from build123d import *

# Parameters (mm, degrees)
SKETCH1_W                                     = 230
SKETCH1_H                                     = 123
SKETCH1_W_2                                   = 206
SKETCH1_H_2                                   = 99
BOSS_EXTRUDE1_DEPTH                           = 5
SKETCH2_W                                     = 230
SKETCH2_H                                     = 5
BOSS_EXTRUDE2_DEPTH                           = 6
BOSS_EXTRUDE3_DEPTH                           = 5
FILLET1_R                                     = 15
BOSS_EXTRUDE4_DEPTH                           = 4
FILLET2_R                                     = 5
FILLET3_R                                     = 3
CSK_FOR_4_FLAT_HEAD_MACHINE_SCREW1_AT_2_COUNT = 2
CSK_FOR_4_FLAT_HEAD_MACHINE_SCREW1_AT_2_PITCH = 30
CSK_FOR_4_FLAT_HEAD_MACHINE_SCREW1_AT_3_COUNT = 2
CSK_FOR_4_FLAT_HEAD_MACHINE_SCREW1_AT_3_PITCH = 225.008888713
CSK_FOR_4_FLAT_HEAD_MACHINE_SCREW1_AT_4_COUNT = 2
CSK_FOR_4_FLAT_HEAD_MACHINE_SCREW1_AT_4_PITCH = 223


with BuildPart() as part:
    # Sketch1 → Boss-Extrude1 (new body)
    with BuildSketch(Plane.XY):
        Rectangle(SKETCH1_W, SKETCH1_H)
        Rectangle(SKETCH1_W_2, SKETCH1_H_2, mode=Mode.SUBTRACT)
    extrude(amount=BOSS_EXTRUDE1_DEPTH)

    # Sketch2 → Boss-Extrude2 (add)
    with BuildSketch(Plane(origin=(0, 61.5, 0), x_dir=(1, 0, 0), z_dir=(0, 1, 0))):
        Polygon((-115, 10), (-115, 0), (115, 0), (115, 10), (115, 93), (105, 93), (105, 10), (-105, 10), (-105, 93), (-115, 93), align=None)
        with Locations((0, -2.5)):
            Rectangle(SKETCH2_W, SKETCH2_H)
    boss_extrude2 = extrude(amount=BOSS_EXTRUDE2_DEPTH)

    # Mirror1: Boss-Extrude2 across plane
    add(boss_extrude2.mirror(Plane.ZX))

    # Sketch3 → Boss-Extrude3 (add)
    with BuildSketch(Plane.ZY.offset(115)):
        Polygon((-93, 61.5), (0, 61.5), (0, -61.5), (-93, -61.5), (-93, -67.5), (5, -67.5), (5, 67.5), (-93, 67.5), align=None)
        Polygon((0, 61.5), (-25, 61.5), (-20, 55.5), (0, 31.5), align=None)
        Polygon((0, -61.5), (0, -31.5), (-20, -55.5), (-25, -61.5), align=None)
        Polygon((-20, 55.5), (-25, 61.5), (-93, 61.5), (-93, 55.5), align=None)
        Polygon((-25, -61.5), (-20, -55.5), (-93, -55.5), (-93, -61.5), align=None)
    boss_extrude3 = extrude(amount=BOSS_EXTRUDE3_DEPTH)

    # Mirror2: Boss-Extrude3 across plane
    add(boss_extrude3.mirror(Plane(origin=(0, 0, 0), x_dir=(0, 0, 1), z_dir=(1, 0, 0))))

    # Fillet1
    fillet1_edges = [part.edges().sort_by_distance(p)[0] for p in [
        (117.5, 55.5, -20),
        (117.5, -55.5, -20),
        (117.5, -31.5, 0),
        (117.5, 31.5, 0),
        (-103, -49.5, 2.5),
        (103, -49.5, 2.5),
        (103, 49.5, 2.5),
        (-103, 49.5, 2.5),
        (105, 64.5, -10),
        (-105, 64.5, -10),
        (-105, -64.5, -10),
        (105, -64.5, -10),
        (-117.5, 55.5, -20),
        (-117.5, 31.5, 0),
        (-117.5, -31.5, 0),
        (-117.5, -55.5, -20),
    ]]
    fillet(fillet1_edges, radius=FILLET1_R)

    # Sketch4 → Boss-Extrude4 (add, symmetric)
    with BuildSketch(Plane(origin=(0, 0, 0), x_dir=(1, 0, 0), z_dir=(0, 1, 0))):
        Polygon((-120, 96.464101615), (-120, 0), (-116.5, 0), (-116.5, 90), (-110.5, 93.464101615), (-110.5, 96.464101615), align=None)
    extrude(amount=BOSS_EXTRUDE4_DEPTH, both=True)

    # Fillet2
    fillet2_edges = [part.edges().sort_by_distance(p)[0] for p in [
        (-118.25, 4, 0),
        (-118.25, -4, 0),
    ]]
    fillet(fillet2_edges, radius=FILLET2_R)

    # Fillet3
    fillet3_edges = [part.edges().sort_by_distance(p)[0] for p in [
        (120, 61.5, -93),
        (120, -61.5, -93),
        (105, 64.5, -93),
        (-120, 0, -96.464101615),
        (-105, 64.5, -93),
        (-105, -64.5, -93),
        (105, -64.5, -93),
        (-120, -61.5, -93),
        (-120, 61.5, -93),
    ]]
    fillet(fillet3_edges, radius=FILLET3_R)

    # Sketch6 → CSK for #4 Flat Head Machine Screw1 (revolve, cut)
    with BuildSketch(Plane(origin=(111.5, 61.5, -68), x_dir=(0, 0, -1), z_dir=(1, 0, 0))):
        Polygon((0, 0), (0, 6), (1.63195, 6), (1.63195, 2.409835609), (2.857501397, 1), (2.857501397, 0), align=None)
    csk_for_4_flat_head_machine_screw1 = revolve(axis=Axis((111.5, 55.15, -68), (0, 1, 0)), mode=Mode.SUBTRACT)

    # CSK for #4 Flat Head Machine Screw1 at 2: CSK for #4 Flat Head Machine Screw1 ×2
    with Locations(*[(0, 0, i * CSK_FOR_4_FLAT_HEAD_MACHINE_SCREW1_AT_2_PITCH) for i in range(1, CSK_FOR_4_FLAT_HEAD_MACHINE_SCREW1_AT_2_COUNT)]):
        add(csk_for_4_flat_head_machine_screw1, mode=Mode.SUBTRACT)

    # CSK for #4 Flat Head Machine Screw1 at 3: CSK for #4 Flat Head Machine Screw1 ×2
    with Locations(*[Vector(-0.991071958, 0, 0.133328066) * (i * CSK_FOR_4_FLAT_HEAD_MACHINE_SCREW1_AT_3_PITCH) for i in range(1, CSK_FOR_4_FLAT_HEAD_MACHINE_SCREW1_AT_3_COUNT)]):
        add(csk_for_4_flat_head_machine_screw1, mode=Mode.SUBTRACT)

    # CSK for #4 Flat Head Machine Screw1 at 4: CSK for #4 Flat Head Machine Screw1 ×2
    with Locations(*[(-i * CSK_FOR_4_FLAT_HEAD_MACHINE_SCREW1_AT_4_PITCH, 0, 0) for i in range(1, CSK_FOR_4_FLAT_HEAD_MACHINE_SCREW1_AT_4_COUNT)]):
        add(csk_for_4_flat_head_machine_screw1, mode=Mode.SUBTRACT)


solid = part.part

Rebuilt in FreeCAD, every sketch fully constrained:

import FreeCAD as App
import Part
import Sketcher

V = App.Vector
Q = App.Units.Quantity


def edges_at(feature, points):
    """Names of the edges that pass closest to the given points."""
    edges = feature.Shape.Edges
    near = lambda p: min(range(len(edges)), key=lambda i: edges[i].distToShape(Part.Vertex(*p))[0])
    return sorted({f"Edge{near(p) + 1}" for p in points})


def add_polygon(sketch, points):
    """Adds a closed chain of lines whose ends are joined by coincident constraints."""
    first, n = sketch.GeometryCount, len(points)
    for a, b in zip(points, points[1:] + points[:1]):
        sketch.addGeometry(Part.LineSegment(App.Vector(*a, 0), App.Vector(*b, 0)), False)
    for i in range(n):
        sketch.addConstraint(Sketcher.Constraint("Coincident", first + i, 2, first + (i + 1) % n, 1))

doc = App.newDocument("Part")
body = doc.addObject("PartDesign::Body", "Body")

sketch1 = body.newObject("Sketcher::SketchObject", "Sketch")
sketch1.AttachmentSupport = (doc.getObject("XY_Plane"), [""])
sketch1.MapMode = "FlatFace"
add_polygon(sketch1, [(-115, 62), (-115, -62), (115, -62), (115, 62)])
add_polygon(sketch1, [(103, -50), (-103, -50), (-103, 50), (103, 50)])
sketch1.addConstraint(Sketcher.Constraint("Vertical", 0))
sketch1.addConstraint(Sketcher.Constraint("Horizontal", 1))
sketch1.addConstraint(Sketcher.Constraint("Vertical", 2))
sketch1.addConstraint(Sketcher.Constraint("Horizontal", 3))
sketch1.addConstraint(Sketcher.Constraint("Horizontal", 4))
sketch1.addConstraint(Sketcher.Constraint("Vertical", 5))
sketch1.addConstraint(Sketcher.Constraint("Horizontal", 6))
sketch1.addConstraint(Sketcher.Constraint("Vertical", 7))
sketch1.addConstraint(Sketcher.Constraint("Symmetric", 0, 2, 2, 2, -1, 1))
sketch1.addConstraint(Sketcher.Constraint("Symmetric", 4, 2, 6, 2, -1, 1))
sketch1.addConstraint(Sketcher.Constraint("DistanceX", 1, 1, 1, 2, Q("230 mm")))
sketch1.addConstraint(Sketcher.Constraint("DistanceX", 4, 2, 4, 1, Q("206 mm")))
sketch1.addConstraint(Sketcher.Constraint("DistanceY", 0, 2, 0, 1, Q("123 mm")))
sketch1.addConstraint(Sketcher.Constraint("DistanceY", 5, 1, 5, 2, Q("99 mm")))
pad1 = body.newObject("PartDesign::Pad", "Pad")
pad1.Profile = sketch1
pad1.Length = 5

sketch2 = body.newObject("Sketcher::SketchObject", "Sketch001")
sketch2.AttachmentSupport = (doc.getObject("XZ_Plane"), [""])
sketch2.MapMode = "FlatFace"
sketch2.AttachmentOffset = App.Placement(V(0, 0, -61.5), App.Rotation())
add_polygon(sketch2, [(115, -93), (105, -93), (105, -10), (-105, -10), (-105, -93), (-115, -93), (-115, 5), (115, 5)])
sketch2.addConstraint(Sketcher.Constraint("Horizontal", 0))
sketch2.addConstraint(Sketcher.Constraint("Vertical", 1))
sketch2.addConstraint(Sketcher.Constraint("Horizontal", 2))
sketch2.addConstraint(Sketcher.Constraint("Vertical", 3))
sketch2.addConstraint(Sketcher.Constraint("Horizontal", 4))
sketch2.addConstraint(Sketcher.Constraint("Vertical", 5))
sketch2.addConstraint(Sketcher.Constraint("Horizontal", 6))
sketch2.addConstraint(Sketcher.Constraint("Vertical", 7))
sketch2.addConstraint(Sketcher.Constraint("Symmetric", 0, 2, 3, 2, -2))
sketch2.addConstraint(Sketcher.Constraint("Equal", 0, 4))
sketch2.addConstraint(Sketcher.Constraint("DistanceX", 0, 2, 0, 1, Q("10 mm")))
sketch2.addConstraint(Sketcher.Constraint("DistanceX", 2, 2, 2, 1, Q("210 mm")))
sketch2.addConstraint(Sketcher.Constraint("DistanceY", 1, 1, 1, 2, Q("83 mm")))
sketch2.addConstraint(Sketcher.Constraint("DistanceY", 5, 1, 5, 2, Q("98 mm")))
sketch2.addConstraint(Sketcher.Constraint("DistanceY", 0, 2, -1, 1, Q("93 mm")))
pad2 = body.newObject("PartDesign::Pad", "Pad001")
pad2.Profile = sketch2
pad2.Length = 6
pad2.Reversed = True
doc.recompute()

mirrored = body.newObject("PartDesign::Mirrored", "Mirrored")
mirrored.Originals = [pad2]
mirrored.MirrorPlane = (doc.getObject("XZ_Plane"), [""])
body.Tip = mirrored

sketch3 = body.newObject("Sketcher::SketchObject", "Sketch002")
sketch3.AttachmentSupport = (doc.getObject("YZ_Plane"), [""])
sketch3.MapMode = "FlatFace"
sketch3.AttachmentOffset = App.Placement(V(0, 0, -115), App.Rotation())
add_polygon(sketch3, [(56, -20), (32, 0), (-32, 0), (-56, -20), (-56, -93), (-68, -93), (-68, 5), (68, 5), (68, -93), (56, -93)])
sketch3.addConstraint(Sketcher.Constraint("Horizontal", 1))
sketch3.addConstraint(Sketcher.Constraint("Vertical", 3))
sketch3.addConstraint(Sketcher.Constraint("Horizontal", 4))
sketch3.addConstraint(Sketcher.Constraint("Vertical", 5))
sketch3.addConstraint(Sketcher.Constraint("Horizontal", 6))
sketch3.addConstraint(Sketcher.Constraint("Vertical", 7))
sketch3.addConstraint(Sketcher.Constraint("Horizontal", 8))
sketch3.addConstraint(Sketcher.Constraint("Vertical", 9))
sketch3.addConstraint(Sketcher.Constraint("Symmetric", 0, 2, 1, 2, -1, 1))
sketch3.addConstraint(Sketcher.Constraint("Symmetric", 4, 2, 7, 2, -2))
sketch3.addConstraint(Sketcher.Constraint("Symmetric", 2, 2, 9, 2, -2))
sketch3.addConstraint(Sketcher.Constraint("DistanceX", 1, 2, 1, 1, Q("63 mm")))
sketch3.addConstraint(Sketcher.Constraint("DistanceX", 4, 2, 4, 1, Q("12 mm")))
sketch3.addConstraint(Sketcher.Constraint("DistanceX", 6, 1, 6, 2, Q("135 mm")))
sketch3.addConstraint(Sketcher.Constraint("DistanceY", 3, 2, 3, 1, Q("73 mm")))
sketch3.addConstraint(Sketcher.Constraint("DistanceY", 5, 1, 5, 2, Q("98 mm")))
sketch3.addConstraint(Sketcher.Constraint("DistanceY", 2, 2, -1, 1, Q("20 mm")))
pad3 = body.newObject("PartDesign::Pad", "Pad002")
pad3.Profile = sketch3
pad3.Length = 5
pad3.Reversed = True
doc.recompute()

mirrored2 = body.newObject("PartDesign::Mirrored", "Mirrored001")
mirrored2.Originals = [pad3]
mirrored2.MirrorPlane = (doc.getObject("YZ_Plane"), [""])
body.Tip = mirrored2
doc.recompute()

fillet = body.newObject("PartDesign::Fillet", "Fillet")
fillet.Base = (mirrored2, edges_at(mirrored2, [
    (117.5, 55.5, -20),
    (117.5, -55.5, -20),
    (117.5, -31.5, 0),
    (117.5, 31.5, 0),
    (-103, -49.5, 2.5),
    (103, -49.5, 2.5),
    (103, 49.5, 2.5),
    (-103, 49.5, 2.5),
    (105, 64.5, -10),
    (-105, 64.5, -10),
    (-105, -64.5, -10),
    (105, -64.5, -10),
    (-117.5, 55.5, -20),
    (-117.5, 31.5, 0),
    (-117.5, -31.5, 0),
    (-117.5, -55.5, -20),
]))
fillet.Radius = 15

sketch4 = body.newObject("Sketcher::SketchObject", "Sketch003")
sketch4.AttachmentSupport = (doc.getObject("XZ_Plane"), [""])
sketch4.MapMode = "FlatFace"
add_polygon(sketch4, [(-120, -96.5), (-120, 0), (-116.5, 0), (-116.5, -90), (-110.5, -93.5), (-110.5, -96.5)])
sketch4.addConstraint(Sketcher.Constraint("Vertical", 0))
sketch4.addConstraint(Sketcher.Constraint("Horizontal", 1))
sketch4.addConstraint(Sketcher.Constraint("Vertical", 2))
sketch4.addConstraint(Sketcher.Constraint("Vertical", 4))
sketch4.addConstraint(Sketcher.Constraint("Horizontal", 5))
sketch4.addConstraint(Sketcher.Constraint("PointOnObject", 0, 2, -1))
sketch4.addConstraint(Sketcher.Constraint("DistanceY", 2, 2, 2, 1, Q("90 mm")))
sketch4.addConstraint(Sketcher.Constraint("DistanceY", 4, 2, 4, 1, Q("3 mm")))
sketch4.addConstraint(Sketcher.Constraint("Angle", 3, Q("-30 deg")))
sketch4.addConstraint(Sketcher.Constraint("DistanceX", 1, 1, 1, 2, Q("3.5 mm")))
sketch4.addConstraint(Sketcher.Constraint("DistanceX", 5, 2, 5, 1, Q("9.5 mm")))
sketch4.addConstraint(Sketcher.Constraint("DistanceX", 0, 2, -1, 1, Q("120 mm")))
pad4 = body.newObject("PartDesign::Pad", "Pad003")
pad4.Profile = sketch4
pad4.Length = 8
pad4.Midplane = True
doc.recompute()

fillet2 = body.newObject("PartDesign::Fillet", "Fillet001")
fillet2.Base = (pad4, edges_at(pad4, [(-118.25, 4, 0), (-118.25, -4, 0)]))
fillet2.Radius = 5
doc.recompute()

fillet3 = body.newObject("PartDesign::Fillet", "Fillet002")
fillet3.Base = (fillet2, edges_at(fillet2, [
    (120, 61.5, -93),
    (120, -61.5, -93),
    (105, 64.5, -93),
    (-120, 0, -96.464),
    (-105, 64.5, -93),
    (-105, -64.5, -93),
    (105, -64.5, -93),
    (-120, -61.5, -93),
    (-120, 61.5, -93),
]))
fillet3.Radius = 3

sketch5 = body.newObject("Sketcher::SketchObject", "Sketch004")
sketch5.AttachmentSupport = (doc.getObject("YZ_Plane"), [""])
sketch5.MapMode = "FlatFace"
sketch5.AttachmentOffset = App.Placement(V(0, 0, 111.5), App.Rotation())
add_polygon(sketch5, [(67.5, -68), (61.5, -68), (61.5, -70.9), (62.5, -70.9), (63.9, -69.6), (67.5, -69.6)])
sketch5.addGeometry(Part.LineSegment(V(61.5, -68, 0), V(67.5, -68, 0)), True)
sketch5.addConstraint(Sketcher.Constraint("Horizontal", 0))
sketch5.addConstraint(Sketcher.Constraint("Vertical", 1))
sketch5.addConstraint(Sketcher.Constraint("Horizontal", 2))
sketch5.addConstraint(Sketcher.Constraint("Horizontal", 4))
sketch5.addConstraint(Sketcher.Constraint("Vertical", 5))
sketch5.addConstraint(Sketcher.Constraint("Horizontal", 6))
sketch5.addConstraint(Sketcher.Constraint("Coincident", 6, 1, 0, 2))
sketch5.addConstraint(Sketcher.Constraint("Vertical", 4, 2, 6, 2))
sketch5.addConstraint(Sketcher.Constraint("DistanceX", 0, 2, 0, 1, Q("6 mm")))
sketch5.addConstraint(Sketcher.Constraint("DistanceX", 2, 1, 2, 2, Q("1 mm")))
sketch5.addConstraint(Sketcher.Constraint("Angle", 3, Q("41 deg")))
sketch5.addConstraint(Sketcher.Constraint("DistanceY", 0, 2, -1, 1, Q("68 mm")))
sketch5.addConstraint(Sketcher.Constraint("DistanceX", -1, 1, 0, 2, Q("61.5 mm")))
sketch5.addConstraint(Sketcher.Constraint("DistanceY", 1, 2, 1, 1, Q("2.857501 mm")))
sketch5.addConstraint(Sketcher.Constraint("DistanceY", 5, 1, 5, 2, Q("1.63195 mm")))
groove = body.newObject("PartDesign::Groove", "Groove")
groove.Profile = sketch5
groove.ReferenceAxis = (sketch5, ["Axis0"])
groove.Angle = 360
doc.recompute()

linearpattern = body.newObject("PartDesign::LinearPattern", "LinearPattern")
linearpattern.Originals = [groove]
linearpattern.Direction = (doc.getObject("Z_Axis"), [""])
linearpattern.Mode = "offset"
linearpattern.Offset = 30
linearpattern.Occurrences = 2
body.Tip = linearpattern
doc.recompute()

datumline = body.newObject("PartDesign::Line", "DatumLine")
datumline.Placement = App.Placement(V(0, 0, 0), App.Rotation(V(0, 0, 1), V(-0.991071958, 0, 0.133328066)))
linearpattern2 = body.newObject("PartDesign::LinearPattern", "LinearPattern001")
linearpattern2.Originals = [groove]
linearpattern2.Direction = (datumline, [""])
linearpattern2.Mode = "offset"
linearpattern2.Offset = 225.008889
linearpattern2.Occurrences = 2
body.Tip = linearpattern2
doc.recompute()

linearpattern3 = body.newObject("PartDesign::LinearPattern", "LinearPattern002")
linearpattern3.Originals = [groove]
linearpattern3.Direction = (doc.getObject("X_Axis"), [""])
linearpattern3.Mode = "offset"
linearpattern3.Offset = 223
linearpattern3.Occurrences = 2
linearpattern3.Reversed = True
body.Tip = linearpattern3

doc.recompute()
